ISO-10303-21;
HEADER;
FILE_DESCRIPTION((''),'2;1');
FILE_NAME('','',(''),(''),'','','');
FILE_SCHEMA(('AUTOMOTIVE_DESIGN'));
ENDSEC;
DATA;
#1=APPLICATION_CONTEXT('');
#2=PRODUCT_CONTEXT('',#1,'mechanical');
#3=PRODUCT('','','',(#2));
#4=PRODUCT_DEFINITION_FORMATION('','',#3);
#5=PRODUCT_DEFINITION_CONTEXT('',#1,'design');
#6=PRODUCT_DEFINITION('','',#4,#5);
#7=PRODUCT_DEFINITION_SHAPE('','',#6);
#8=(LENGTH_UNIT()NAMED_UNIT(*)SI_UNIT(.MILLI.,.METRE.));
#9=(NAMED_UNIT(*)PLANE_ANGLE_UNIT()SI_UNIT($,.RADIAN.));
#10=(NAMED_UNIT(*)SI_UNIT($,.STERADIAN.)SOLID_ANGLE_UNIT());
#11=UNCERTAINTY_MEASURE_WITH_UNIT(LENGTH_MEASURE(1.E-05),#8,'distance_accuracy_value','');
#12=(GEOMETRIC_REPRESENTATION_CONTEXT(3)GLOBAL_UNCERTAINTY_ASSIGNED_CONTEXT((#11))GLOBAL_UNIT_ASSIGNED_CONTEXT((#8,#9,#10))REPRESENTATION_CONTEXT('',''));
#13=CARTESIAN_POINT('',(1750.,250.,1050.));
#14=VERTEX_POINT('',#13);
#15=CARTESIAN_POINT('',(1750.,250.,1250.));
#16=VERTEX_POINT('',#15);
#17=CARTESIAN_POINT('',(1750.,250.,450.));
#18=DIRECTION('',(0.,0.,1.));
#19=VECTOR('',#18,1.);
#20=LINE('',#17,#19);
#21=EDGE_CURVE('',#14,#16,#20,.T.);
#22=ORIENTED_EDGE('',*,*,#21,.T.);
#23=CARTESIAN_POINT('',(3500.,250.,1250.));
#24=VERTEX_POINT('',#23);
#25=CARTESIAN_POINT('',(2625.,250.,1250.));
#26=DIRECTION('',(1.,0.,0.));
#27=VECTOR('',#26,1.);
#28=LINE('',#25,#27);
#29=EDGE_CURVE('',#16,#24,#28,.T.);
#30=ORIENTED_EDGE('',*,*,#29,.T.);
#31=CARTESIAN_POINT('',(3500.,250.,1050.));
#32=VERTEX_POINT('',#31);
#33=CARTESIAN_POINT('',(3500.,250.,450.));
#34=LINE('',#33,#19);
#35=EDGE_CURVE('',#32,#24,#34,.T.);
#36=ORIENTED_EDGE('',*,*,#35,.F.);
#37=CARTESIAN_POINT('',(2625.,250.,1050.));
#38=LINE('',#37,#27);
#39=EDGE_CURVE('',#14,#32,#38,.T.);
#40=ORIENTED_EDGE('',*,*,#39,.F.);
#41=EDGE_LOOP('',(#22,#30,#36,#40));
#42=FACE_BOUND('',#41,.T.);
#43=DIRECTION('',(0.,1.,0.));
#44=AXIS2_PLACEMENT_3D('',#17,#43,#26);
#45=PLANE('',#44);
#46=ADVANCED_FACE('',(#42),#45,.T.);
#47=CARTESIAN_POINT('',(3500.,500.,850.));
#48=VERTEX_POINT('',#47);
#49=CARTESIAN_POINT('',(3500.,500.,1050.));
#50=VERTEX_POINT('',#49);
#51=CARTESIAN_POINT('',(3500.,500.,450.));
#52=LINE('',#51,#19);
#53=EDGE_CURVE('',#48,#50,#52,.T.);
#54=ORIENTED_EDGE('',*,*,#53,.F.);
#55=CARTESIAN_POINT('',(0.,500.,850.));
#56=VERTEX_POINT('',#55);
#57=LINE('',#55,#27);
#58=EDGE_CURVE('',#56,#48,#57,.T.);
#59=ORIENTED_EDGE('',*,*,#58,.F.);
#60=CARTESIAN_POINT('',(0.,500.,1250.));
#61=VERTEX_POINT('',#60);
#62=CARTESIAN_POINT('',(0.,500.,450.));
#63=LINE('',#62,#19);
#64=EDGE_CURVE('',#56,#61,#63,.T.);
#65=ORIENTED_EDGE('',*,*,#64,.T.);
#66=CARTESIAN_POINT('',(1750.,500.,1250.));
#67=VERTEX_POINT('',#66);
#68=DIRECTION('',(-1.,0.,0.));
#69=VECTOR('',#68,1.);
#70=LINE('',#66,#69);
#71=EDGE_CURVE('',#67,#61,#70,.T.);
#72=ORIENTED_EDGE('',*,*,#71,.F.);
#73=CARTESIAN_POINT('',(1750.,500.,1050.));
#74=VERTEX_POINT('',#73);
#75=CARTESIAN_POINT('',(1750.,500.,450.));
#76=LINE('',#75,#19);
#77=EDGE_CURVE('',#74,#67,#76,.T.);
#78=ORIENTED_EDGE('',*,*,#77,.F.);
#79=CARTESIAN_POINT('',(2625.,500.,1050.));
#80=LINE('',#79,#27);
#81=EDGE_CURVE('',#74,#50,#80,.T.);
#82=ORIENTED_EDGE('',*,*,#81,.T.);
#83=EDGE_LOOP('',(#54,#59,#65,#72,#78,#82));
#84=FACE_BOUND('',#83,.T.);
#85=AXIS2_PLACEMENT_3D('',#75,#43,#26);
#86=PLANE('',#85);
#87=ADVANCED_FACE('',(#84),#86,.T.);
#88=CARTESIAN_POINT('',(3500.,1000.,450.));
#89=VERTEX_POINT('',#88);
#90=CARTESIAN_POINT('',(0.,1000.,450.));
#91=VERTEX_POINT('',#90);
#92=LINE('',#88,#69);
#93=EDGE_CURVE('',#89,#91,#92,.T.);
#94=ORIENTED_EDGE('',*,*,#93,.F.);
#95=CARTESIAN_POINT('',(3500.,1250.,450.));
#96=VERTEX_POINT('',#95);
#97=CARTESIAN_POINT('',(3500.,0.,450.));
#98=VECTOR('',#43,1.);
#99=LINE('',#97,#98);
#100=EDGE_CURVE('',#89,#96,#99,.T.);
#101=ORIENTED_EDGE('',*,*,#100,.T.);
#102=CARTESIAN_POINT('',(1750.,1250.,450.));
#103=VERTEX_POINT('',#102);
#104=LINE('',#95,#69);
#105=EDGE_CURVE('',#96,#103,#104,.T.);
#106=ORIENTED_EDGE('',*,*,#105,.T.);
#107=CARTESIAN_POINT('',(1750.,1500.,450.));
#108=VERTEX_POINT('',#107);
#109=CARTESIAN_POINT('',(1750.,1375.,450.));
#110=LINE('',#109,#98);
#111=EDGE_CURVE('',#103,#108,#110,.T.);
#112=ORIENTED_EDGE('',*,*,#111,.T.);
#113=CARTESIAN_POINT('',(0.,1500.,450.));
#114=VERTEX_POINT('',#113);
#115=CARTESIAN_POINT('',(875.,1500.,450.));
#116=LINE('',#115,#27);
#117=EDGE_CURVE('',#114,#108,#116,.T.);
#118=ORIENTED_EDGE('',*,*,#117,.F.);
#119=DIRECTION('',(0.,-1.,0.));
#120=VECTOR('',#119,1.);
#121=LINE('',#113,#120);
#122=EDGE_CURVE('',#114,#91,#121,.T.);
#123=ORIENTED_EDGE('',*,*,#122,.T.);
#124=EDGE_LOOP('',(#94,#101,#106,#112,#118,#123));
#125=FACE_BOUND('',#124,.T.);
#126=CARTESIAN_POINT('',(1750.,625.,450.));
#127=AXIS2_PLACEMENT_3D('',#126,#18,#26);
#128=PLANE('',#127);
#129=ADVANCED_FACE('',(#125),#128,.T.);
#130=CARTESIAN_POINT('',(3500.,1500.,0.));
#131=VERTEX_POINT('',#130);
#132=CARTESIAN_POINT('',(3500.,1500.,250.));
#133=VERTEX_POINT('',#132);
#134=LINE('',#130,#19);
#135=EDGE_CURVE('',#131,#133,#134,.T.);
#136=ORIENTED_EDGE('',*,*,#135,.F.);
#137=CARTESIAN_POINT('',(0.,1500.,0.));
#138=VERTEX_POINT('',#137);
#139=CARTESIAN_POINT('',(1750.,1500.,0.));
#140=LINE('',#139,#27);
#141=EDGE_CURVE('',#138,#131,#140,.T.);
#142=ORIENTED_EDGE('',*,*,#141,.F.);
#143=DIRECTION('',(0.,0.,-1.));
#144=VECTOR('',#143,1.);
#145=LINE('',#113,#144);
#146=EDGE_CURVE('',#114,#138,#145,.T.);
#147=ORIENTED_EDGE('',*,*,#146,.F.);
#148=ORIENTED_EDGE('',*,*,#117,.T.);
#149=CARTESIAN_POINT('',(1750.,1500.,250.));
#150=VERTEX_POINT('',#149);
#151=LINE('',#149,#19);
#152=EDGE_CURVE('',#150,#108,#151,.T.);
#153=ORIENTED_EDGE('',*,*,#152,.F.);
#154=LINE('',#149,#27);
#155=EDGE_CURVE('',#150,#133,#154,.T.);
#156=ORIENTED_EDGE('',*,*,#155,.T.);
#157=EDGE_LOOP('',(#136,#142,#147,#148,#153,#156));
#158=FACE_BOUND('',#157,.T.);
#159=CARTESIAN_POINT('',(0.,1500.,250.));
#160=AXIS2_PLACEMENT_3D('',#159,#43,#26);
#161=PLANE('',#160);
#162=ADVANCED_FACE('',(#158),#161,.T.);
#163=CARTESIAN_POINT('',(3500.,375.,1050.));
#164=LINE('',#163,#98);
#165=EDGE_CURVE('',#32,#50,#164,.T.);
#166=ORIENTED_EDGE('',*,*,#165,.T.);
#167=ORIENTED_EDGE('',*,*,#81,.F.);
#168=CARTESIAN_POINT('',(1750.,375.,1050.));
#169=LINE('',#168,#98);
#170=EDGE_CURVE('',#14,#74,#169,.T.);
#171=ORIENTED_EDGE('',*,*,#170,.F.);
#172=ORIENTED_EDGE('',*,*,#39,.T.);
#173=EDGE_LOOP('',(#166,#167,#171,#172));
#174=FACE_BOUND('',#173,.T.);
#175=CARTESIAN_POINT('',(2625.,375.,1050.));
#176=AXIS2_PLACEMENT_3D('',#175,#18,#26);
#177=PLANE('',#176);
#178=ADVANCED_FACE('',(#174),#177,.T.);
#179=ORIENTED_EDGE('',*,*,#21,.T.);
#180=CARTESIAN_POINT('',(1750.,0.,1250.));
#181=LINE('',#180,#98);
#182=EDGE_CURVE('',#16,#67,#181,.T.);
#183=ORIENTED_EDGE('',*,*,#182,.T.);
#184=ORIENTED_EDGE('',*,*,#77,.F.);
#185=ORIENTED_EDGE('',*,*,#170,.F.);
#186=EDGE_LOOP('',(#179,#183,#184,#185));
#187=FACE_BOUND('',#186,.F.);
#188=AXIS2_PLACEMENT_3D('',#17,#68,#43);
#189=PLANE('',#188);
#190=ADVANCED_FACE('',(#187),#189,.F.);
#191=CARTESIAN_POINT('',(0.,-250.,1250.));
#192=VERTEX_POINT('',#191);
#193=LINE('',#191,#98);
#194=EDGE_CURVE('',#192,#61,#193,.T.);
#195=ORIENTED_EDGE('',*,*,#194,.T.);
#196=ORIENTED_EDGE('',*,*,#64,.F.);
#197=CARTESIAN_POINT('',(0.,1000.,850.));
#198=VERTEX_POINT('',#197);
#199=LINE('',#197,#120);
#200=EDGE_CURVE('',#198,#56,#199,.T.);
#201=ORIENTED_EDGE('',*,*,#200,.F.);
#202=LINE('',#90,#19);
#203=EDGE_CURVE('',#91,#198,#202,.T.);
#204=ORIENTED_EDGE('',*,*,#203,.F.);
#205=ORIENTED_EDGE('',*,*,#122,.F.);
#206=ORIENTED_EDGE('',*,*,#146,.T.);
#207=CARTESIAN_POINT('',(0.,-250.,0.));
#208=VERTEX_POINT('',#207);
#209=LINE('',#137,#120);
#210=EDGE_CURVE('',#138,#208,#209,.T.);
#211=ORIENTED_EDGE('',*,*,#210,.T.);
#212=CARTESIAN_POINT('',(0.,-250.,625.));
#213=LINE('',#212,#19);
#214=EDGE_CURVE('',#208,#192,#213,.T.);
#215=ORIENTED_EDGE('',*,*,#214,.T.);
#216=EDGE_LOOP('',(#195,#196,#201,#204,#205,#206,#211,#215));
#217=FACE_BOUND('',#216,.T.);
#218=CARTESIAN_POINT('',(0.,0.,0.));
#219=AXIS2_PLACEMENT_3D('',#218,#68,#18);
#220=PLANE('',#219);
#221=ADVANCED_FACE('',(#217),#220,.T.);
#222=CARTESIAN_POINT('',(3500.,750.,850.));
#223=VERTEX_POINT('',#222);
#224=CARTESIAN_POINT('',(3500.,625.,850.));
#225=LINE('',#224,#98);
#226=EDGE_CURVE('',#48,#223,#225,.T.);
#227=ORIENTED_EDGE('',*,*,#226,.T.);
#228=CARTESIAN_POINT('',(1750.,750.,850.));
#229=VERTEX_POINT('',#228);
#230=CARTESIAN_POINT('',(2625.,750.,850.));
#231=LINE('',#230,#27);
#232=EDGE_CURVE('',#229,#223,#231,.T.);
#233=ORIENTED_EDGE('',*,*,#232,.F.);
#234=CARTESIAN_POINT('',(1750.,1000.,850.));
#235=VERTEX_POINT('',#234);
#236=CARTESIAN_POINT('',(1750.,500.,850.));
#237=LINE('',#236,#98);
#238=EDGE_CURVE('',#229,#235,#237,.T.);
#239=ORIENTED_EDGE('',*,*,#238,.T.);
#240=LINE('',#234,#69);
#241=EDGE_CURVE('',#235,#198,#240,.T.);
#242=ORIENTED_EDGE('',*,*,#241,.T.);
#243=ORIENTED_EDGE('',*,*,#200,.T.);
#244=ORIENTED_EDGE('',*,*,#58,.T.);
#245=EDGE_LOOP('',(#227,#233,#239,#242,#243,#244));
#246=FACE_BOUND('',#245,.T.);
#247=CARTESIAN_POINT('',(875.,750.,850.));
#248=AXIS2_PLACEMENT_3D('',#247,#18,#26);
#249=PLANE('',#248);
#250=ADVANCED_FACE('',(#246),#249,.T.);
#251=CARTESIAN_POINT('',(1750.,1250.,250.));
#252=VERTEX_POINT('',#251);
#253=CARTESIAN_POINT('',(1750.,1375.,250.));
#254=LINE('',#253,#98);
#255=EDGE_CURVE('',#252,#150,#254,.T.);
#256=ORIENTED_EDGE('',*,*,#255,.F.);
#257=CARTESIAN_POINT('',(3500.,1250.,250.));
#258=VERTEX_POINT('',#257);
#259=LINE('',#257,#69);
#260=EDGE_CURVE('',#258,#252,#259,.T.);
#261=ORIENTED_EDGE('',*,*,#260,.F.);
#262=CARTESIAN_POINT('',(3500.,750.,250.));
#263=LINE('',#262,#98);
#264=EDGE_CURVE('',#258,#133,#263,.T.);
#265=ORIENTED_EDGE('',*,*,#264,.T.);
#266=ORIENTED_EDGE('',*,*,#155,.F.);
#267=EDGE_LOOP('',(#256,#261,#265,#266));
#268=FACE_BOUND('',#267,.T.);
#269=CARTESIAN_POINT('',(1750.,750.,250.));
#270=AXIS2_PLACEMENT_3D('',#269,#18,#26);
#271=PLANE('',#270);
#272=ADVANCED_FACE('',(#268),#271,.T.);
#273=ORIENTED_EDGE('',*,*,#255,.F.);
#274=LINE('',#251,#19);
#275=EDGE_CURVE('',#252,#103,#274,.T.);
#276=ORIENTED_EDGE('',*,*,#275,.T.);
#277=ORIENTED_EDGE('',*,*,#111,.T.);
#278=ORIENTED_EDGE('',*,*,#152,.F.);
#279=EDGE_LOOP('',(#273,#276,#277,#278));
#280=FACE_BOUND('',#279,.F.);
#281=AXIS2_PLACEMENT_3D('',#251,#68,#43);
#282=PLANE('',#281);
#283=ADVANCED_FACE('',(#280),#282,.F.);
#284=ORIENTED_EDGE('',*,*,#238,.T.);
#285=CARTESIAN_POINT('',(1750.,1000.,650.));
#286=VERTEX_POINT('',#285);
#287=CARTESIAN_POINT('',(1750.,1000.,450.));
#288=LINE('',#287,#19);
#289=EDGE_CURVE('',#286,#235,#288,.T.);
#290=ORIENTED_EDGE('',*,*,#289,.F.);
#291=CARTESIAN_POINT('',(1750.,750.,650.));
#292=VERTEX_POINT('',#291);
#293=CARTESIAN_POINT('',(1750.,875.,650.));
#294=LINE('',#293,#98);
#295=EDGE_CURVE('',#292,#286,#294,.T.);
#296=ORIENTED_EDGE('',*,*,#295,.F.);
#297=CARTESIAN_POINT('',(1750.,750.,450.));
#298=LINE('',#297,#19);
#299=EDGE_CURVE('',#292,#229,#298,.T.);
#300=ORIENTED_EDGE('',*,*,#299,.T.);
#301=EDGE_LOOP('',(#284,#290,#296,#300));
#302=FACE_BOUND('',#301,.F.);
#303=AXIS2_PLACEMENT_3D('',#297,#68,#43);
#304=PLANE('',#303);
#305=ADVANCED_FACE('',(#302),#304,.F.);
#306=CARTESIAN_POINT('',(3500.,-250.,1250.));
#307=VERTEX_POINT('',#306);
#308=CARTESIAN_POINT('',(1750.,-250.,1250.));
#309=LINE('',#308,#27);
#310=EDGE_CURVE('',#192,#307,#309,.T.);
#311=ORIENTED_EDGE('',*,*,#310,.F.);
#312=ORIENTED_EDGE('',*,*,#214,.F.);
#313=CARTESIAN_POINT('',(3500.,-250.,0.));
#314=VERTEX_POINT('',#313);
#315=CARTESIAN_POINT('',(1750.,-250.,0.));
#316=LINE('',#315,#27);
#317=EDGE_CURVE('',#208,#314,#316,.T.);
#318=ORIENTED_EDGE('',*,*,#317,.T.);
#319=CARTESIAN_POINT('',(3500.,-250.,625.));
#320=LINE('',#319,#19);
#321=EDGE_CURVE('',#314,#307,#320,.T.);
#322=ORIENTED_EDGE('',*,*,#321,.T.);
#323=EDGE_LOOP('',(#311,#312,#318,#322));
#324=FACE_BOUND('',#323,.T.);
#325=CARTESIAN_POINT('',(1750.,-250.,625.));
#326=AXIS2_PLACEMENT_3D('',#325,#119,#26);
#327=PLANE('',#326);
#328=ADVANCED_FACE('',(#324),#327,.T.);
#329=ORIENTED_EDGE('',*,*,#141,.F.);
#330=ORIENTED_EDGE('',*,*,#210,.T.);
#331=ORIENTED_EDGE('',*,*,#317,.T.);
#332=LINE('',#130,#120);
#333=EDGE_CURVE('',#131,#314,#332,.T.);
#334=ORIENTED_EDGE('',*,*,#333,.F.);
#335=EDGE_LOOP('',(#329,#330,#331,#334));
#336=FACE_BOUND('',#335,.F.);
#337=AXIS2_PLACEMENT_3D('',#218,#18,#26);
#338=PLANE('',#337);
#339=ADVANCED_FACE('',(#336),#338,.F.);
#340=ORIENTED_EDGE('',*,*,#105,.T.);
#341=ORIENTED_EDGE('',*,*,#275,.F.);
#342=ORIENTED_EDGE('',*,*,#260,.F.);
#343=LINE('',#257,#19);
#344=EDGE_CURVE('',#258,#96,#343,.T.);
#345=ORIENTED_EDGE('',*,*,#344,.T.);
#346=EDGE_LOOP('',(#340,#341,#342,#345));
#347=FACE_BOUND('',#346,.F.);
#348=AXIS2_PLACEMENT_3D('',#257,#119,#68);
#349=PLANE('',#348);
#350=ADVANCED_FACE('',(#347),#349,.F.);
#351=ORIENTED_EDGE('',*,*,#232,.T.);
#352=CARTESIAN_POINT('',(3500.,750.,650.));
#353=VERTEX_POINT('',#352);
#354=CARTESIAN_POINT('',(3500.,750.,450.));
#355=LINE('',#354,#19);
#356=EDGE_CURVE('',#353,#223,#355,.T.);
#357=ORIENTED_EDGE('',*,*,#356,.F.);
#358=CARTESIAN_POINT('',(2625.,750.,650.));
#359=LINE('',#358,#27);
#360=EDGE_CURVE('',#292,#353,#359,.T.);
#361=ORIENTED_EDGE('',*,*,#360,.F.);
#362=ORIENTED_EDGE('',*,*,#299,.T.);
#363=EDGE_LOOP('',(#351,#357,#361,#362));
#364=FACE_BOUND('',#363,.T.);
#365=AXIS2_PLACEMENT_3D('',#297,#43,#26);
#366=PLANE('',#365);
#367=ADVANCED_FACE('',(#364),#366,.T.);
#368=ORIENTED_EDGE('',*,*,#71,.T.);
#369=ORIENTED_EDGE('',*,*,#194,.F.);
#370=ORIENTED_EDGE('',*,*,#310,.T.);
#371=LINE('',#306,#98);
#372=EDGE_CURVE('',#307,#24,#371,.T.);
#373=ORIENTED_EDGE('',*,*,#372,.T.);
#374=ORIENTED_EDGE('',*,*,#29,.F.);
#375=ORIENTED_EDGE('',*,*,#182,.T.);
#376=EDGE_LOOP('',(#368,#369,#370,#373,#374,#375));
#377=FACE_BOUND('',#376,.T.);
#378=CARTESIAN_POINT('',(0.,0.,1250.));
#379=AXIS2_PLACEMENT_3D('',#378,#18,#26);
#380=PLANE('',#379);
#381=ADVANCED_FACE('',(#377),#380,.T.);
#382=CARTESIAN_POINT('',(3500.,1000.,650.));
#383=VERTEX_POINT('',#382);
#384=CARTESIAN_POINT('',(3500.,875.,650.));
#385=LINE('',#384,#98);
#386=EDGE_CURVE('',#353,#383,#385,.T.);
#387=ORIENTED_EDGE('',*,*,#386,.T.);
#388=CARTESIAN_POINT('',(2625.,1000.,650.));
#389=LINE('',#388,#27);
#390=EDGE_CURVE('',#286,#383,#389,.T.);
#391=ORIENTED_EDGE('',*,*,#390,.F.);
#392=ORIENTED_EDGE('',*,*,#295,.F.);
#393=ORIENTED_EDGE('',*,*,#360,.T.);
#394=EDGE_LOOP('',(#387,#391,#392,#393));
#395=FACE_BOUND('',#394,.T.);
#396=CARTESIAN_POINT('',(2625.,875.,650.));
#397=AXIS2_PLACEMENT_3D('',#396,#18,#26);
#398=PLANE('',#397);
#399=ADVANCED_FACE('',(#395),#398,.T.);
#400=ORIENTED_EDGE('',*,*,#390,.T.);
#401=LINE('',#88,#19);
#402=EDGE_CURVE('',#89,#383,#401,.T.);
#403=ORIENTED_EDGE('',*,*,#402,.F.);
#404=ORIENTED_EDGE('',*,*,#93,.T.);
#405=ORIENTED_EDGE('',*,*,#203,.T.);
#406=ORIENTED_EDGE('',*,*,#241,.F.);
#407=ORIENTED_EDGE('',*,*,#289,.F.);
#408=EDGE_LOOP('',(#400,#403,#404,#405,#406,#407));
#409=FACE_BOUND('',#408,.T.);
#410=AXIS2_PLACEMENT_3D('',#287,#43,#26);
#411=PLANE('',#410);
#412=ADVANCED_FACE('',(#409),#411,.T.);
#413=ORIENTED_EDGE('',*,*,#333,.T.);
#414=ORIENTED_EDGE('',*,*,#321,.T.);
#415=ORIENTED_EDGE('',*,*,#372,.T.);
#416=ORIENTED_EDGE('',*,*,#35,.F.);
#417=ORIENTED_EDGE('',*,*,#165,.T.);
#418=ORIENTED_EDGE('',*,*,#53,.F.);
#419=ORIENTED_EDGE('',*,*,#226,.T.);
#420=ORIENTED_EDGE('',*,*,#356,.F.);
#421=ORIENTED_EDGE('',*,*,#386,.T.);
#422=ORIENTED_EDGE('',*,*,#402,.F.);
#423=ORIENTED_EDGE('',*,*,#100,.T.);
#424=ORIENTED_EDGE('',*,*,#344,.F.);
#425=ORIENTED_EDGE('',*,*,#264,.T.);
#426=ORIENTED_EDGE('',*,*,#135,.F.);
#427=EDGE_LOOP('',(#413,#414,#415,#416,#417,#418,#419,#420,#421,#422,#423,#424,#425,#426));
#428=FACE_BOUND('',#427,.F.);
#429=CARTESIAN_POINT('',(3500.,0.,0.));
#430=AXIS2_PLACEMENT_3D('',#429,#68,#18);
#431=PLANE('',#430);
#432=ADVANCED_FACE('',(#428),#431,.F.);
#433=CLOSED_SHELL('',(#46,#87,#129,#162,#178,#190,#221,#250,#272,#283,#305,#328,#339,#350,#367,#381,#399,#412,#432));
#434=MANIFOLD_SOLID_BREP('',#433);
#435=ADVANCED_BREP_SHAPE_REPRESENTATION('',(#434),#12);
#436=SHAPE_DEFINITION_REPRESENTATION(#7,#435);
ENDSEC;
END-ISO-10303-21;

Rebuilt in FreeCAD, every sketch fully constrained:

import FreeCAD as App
import Part
import Sketcher

V = App.Vector
Q = App.Units.Quantity


def add_polygon(sketch, points):
    """Adds a closed chain of lines whose ends are joined by coincident constraints."""
    first, n = sketch.GeometryCount, len(points)
    for a, b in zip(points, points[1:] + points[:1]):
        sketch.addGeometry(Part.LineSegment(App.Vector(*a, 0), App.Vector(*b, 0)), False)
    for i in range(n):
        sketch.addConstraint(Sketcher.Constraint("Coincident", first + i, 2, first + (i + 1) % n, 1))

doc = App.newDocument("Part")
body = doc.addObject("PartDesign::Body", "Body")

# Sketch on XY plane
sketch1 = body.newObject("Sketcher::SketchObject", "Sketch")
sketch1.AttachmentSupport = (doc.getObject("XY_Plane"), [""])
sketch1.MapMode = "FlatFace"
add_polygon(sketch1, [(0, 1500), (0, 0), (3500, 0), (3500, 1500)])  # lines 0-3
sketch1.addConstraint([
    Sketcher.Constraint("Vertical", 0),
    Sketcher.Constraint("Horizontal", 1),
    Sketcher.Constraint("Vertical", 2),
    Sketcher.Constraint("Horizontal", 3),
    Sketcher.Constraint("Coincident", 0, 2, -1, 1),
    Sketcher.Constraint("DistanceX", 1, 1, 1, 2, Q("3500 mm")),
    Sketcher.Constraint("DistanceY", 0, 2, 0, 1, Q("1500 mm")),
])
pad1 = body.newObject("PartDesign::Pad", "Pad")
pad1.Profile = sketch1
pad1.Length = 250

# Sketch on XY plane
sketch2 = body.newObject("Sketcher::SketchObject", "Sketch001")
sketch2.AttachmentSupport = (doc.getObject("XY_Plane"), [""])
sketch2.MapMode = "FlatFace"
sketch2.AttachmentOffset = App.Placement(V(0, 0, 250), App.Rotation())
add_polygon(sketch2, [(0, 0), (3500, 0), (3500, 1250), (1750, 1250), (1750, 1500), (0, 1500)])  # lines 0-5
sketch2.addConstraint([
    Sketcher.Constraint("Horizontal", 0),
    Sketcher.Constraint("Vertical", 1),
    Sketcher.Constraint("Horizontal", 2),
    Sketcher.Constraint("Vertical", 3),
    Sketcher.Constraint("Horizontal", 4),
    Sketcher.Constraint("Vertical", 5),
    Sketcher.Constraint("Coincident", 5, 2, -1, 1),
    Sketcher.Constraint("Equal", 2, 4),
    Sketcher.Constraint("DistanceX", 0, 1, 0, 2, Q("3500 mm")),
    Sketcher.Constraint("DistanceY", 1, 1, 1, 2, Q("1250 mm")),
    Sketcher.Constraint("DistanceY", 3, 1, 3, 2, Q("250 mm")),
])
pad2 = body.newObject("PartDesign::Pad", "Pad001")
pad2.Profile = sketch2
pad2.Length = 200

# Sketch on XY plane
sketch3 = body.newObject("Sketcher::SketchObject", "Sketch002")
sketch3.AttachmentSupport = (doc.getObject("XY_Plane"), [""])
sketch3.MapMode = "FlatFace"
sketch3.AttachmentOffset = App.Placement(V(0, 0, 450), App.Rotation())
add_polygon(sketch3, [(0, 500), (0, 0), (3500, 0), (3500, 250), (1750, 250), (1750, 500)])  # lines 0-5
sketch3.addConstraint([
    Sketcher.Constraint("Vertical", 0),
    Sketcher.Constraint("Horizontal", 1),
    Sketcher.Constraint("Vertical", 2),
    Sketcher.Constraint("Horizontal", 3),
    Sketcher.Constraint("Vertical", 4),
    Sketcher.Constraint("Horizontal", 5),
    Sketcher.Constraint("Coincident", 0, 2, -1, 1),
    Sketcher.Constraint("Equal", 3, 5),
    Sketcher.Constraint("Equal", 2, 4),
    Sketcher.Constraint("DistanceX", 1, 1, 1, 2, Q("3500 mm")),
    Sketcher.Constraint("DistanceY", 0, 2, 0, 1, Q("500 mm")),
])
pad3 = body.newObject("PartDesign::Pad", "Pad002")
pad3.Profile = sketch3
pad3.Length = 800

# Sketch on XY plane
sketch4 = body.newObject("Sketcher::SketchObject", "Sketch003")
sketch4.AttachmentSupport = (doc.getObject("XY_Plane"), [""])
sketch4.MapMode = "FlatFace"
sketch4.AttachmentOffset = App.Placement(V(0, 0, 450), App.Rotation())
add_polygon(sketch4, [(1750, 500), (1750, 250), (3500, 250), (3500, 500)])  # lines 0-3
sketch4.addConstraint([
    Sketcher.Constraint("Vertical", 0),
    Sketcher.Constraint("Horizontal", 1),
    Sketcher.Constraint("Vertical", 2),
    Sketcher.Constraint("Horizontal", 3),
    Sketcher.Constraint("DistanceX", 1, 1, 1, 2, Q("1750 mm")),
    Sketcher.Constraint("DistanceY", 0, 2, 0, 1, Q("250 mm")),
    Sketcher.Constraint("DistanceX", -1, 1, 0, 2, Q("1750 mm")),
    Sketcher.Constraint("DistanceY", -1, 1, 0, 2, Q("250 mm")),
])
pad4 = body.newObject("PartDesign::Pad", "Pad003")
pad4.Profile = sketch4
pad4.Length = 600

# Sketch on XY plane
sketch5 = body.newObject("Sketcher::SketchObject", "Sketch004")
sketch5.AttachmentSupport = (doc.getObject("XY_Plane"), [""])
sketch5.MapMode = "FlatFace"
sketch5.AttachmentOffset = App.Placement(V(0, 0, 450), App.Rotation())
add_polygon(sketch5, [(1750, 1000), (0, 1000), (0, 500), (3500, 500), (3500, 750), (1750, 750)])  # lines 0-5
sketch5.addConstraint([
    Sketcher.Constraint("Horizontal", 0),
    Sketcher.Constraint("Vertical", 1),
    Sketcher.Constraint("Horizontal", 2),
    Sketcher.Constraint("Vertical", 3),
    Sketcher.Constraint("Horizontal", 4),
    Sketcher.Constraint("Vertical", 5),
    Sketcher.Constraint("PointOnObject", 0, 2, -2),
    Sketcher.Constraint("Equal", 0, 4),
    Sketcher.Constraint("Equal", 3, 5),
    Sketcher.Constraint("DistanceX", 0, 2, 0, 1, Q("1750 mm")),
    Sketcher.Constraint("DistanceY", 1, 2, 1, 1, Q("500 mm")),
    Sketcher.Constraint("DistanceY", -1, 1, 0, 2, Q("1000 mm")),
])
pad5 = body.newObject("PartDesign::Pad", "Pad004")
pad5.Profile = sketch5
pad5.Length = 400

# Sketch on XY plane
sketch6 = body.newObject("Sketcher::SketchObject", "Sketch005")
sketch6.AttachmentSupport = (doc.getObject("XY_Plane"), [""])
sketch6.MapMode = "FlatFace"
sketch6.AttachmentOffset = App.Placement(V(0, 0, 450), App.Rotation())
add_polygon(sketch6, [(1750, 1000), (1750, 750), (3500, 750), (3500, 1000)])  # lines 0-3
sketch6.addConstraint([
    Sketcher.Constraint("Vertical", 0),
    Sketcher.Constraint("Horizontal", 1),
    Sketcher.Constraint("Vertical", 2),
    Sketcher.Constraint("Horizontal", 3),
    Sketcher.Constraint("DistanceX", 1, 1, 1, 2, Q("1750 mm")),
    Sketcher.Constraint("DistanceY", 0, 2, 0, 1, Q("250 mm")),
    Sketcher.Constraint("DistanceX", -1, 1, 0, 2, Q("1750 mm")),
    Sketcher.Constraint("DistanceY", -1, 1, 0, 2, Q("750 mm")),
])
pad6 = body.newObject("PartDesign::Pad", "Pad005")
pad6.Profile = sketch6
pad6.Length = 200

# Sketch on XZ plane
sketch7 = body.newObject("Sketcher::SketchObject", "Sketch006")
sketch7.AttachmentSupport = (doc.getObject("XZ_Plane"), [""])
sketch7.MapMode = "FlatFace"
add_polygon(sketch7, [(0, 1250), (0, 0), (3500, 0), (3500, 1250)])  # lines 0-3
sketch7.addConstraint([
    Sketcher.Constraint("Vertical", 0),
    Sketcher.Constraint("Horizontal", 1),
    Sketcher.Constraint("Vertical", 2),
    Sketcher.Constraint("Horizontal", 3),
    Sketcher.Constraint("Coincident", 0, 2, -1, 1),
    Sketcher.Constraint("DistanceX", 1, 1, 1, 2, Q("3500 mm")),
    Sketcher.Constraint("DistanceY", 0, 2, 0, 1, Q("1250 mm")),
])
pad7 = body.newObject("PartDesign::Pad", "Pad006")
pad7.Profile = sketch7
pad7.Length = 250

doc.recompute()
